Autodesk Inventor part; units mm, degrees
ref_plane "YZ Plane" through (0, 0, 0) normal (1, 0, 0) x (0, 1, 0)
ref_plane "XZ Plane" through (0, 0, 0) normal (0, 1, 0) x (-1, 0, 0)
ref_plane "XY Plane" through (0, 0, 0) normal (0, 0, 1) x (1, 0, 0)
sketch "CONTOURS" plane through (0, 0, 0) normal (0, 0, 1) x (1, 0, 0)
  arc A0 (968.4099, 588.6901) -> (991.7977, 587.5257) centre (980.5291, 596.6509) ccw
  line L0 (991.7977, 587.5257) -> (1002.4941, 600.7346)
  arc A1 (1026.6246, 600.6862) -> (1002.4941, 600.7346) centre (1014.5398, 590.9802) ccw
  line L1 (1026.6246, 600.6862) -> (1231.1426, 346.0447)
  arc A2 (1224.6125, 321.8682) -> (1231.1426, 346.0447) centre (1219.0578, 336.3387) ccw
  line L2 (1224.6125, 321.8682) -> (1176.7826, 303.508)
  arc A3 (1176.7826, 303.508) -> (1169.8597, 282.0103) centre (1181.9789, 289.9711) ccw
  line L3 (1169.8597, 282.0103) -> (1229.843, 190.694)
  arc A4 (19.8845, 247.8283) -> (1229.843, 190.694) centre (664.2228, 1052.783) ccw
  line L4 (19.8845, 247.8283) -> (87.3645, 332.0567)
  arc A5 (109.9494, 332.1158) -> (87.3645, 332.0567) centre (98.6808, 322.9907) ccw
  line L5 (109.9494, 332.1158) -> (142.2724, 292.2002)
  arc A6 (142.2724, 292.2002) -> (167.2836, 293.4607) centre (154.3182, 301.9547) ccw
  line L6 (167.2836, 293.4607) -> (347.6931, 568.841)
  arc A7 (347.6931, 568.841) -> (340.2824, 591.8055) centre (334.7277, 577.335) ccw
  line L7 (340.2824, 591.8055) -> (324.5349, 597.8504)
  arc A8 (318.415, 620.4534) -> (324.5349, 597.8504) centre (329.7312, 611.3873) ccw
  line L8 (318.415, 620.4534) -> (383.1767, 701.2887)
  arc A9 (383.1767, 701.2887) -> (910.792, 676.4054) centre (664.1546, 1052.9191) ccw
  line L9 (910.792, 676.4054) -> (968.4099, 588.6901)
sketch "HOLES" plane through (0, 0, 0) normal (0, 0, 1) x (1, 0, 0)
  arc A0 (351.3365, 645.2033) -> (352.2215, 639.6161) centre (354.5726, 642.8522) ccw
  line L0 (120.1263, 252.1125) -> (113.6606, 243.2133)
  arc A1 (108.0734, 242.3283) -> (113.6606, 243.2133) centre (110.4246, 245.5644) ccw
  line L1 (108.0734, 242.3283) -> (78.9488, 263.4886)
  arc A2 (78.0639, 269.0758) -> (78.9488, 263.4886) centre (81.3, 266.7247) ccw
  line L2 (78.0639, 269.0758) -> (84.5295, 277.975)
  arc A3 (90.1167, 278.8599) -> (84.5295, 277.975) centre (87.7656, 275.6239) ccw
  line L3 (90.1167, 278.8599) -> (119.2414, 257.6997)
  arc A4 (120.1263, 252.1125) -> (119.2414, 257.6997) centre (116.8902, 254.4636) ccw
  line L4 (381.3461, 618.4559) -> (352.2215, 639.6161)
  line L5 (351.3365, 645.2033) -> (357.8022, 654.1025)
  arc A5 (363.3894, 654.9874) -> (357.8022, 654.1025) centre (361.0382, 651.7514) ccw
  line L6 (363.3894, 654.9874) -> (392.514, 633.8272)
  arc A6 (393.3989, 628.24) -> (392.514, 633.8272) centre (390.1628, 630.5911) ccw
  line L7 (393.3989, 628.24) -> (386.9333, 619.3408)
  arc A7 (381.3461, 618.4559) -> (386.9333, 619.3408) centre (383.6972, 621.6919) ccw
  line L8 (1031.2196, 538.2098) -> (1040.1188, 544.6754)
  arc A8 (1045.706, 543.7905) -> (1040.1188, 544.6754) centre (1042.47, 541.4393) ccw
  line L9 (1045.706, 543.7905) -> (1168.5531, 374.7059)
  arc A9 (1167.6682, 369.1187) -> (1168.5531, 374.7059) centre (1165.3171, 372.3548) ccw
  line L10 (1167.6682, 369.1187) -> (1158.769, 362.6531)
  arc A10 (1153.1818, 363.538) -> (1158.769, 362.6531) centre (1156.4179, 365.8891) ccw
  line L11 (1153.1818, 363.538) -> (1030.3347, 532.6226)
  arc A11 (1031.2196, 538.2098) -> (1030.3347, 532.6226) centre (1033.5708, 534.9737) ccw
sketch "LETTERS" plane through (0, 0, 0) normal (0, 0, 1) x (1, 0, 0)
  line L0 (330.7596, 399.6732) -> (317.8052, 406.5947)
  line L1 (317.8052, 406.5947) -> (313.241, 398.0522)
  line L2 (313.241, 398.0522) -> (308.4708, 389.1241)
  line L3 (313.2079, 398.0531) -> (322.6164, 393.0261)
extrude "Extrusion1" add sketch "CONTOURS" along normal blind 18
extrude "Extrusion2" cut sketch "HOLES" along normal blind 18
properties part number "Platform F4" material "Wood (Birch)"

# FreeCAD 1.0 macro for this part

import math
import FreeCAD as App
import Part
import Sketcher
from FreeCAD import Vector
Q = App.Units.Quantity

doc = App.newDocument("Part")
body = doc.addObject("PartDesign::Body", "Body")

# Sketch on XY plane
sketch1 = doc.addObject("Sketcher::SketchObject", "Sketch")
body.addObject(sketch1)
sketch1.AttachmentSupport = (doc.XY_Plane, [""])
sketch1.MapMode = "FlatFace"
sketch1.addGeometry([
    Part.ArcOfCircle(Part.Circle(Vector(981, 597, 0), Vector(0, 0, 1), 14), math.radians(-147), math.radians(-39)),  # 0
    Part.LineSegment(Vector(968, 589, 0), Vector(911, 676, 0)),  # 1
    Part.ArcOfCircle(Part.Circle(Vector(664, 1053, 0), Vector(0, 0, 1), 450), math.radians(-129), math.radians(-57)),  # 2
    Part.LineSegment(Vector(383, 701, 0), Vector(318, 620, 0)),  # 3
    Part.ArcOfCircle(Part.Circle(Vector(330, 611, 0), Vector(0, 0, 1), 15), math.radians(141), math.radians(249)),  # 4
    Part.LineSegment(Vector(325, 598, 0), Vector(340, 592, 0)),  # 5
    Part.ArcOfCircle(Part.Circle(Vector(335, 577, 0), Vector(0, 0, 1), 15), math.radians(-33), math.radians(69)),  # 6
    Part.LineSegment(Vector(348, 569, 0), Vector(167, 293, 0)),  # 7
    Part.ArcOfCircle(Part.Circle(Vector(154, 302, 0), Vector(0, 0, 1), 16), math.radians(-141), math.radians(-33)),  # 8
    Part.LineSegment(Vector(142, 292, 0), Vector(110, 332, 0)),  # 9
    Part.ArcOfCircle(Part.Circle(Vector(99, 323, 0), Vector(0, 0, 1), 14), math.radians(39), math.radians(141)),  # 10
    Part.LineSegment(Vector(87, 332, 0), Vector(20, 248, 0)),  # 11
    Part.ArcOfCircle(Part.Circle(Vector(664, 1053, 0), Vector(0, 0, 1), 1031), math.radians(-129), math.radians(-57)),  # 12
    Part.LineSegment(Vector(1230, 191, 0), Vector(1170, 282, 0)),  # 13
    Part.ArcOfCircle(Part.Circle(Vector(1182, 290, 0), Vector(0, 0, 1), 14), math.radians(111), math.radians(213)),  # 14
    Part.LineSegment(Vector(1177, 304, 0), Vector(1225, 322, 0)),  # 15
    Part.ArcOfCircle(Part.Circle(Vector(1219, 336, 0), Vector(0, 0, 1), 16), math.radians(-69), math.radians(39)),  # 16
    Part.LineSegment(Vector(1231, 346, 0), Vector(1027, 601, 0)),  # 17
    Part.ArcOfCircle(Part.Circle(Vector(1015, 591, 0), Vector(0, 0, 1), 15), math.radians(39), math.radians(141)),  # 18
    Part.LineSegment(Vector(1002, 601, 0), Vector(992, 588, 0)),  # 19
], False)
sketch1.addConstraint([
    Sketcher.Constraint("Tangent", 0, 1, 1, 1),
    Sketcher.Constraint("Coincident", 1, 2, 2, 2),
    Sketcher.Constraint("Coincident", 2, 1, 3, 1),
    Sketcher.Constraint("Tangent", 3, 2, 4, 1),
    Sketcher.Constraint("Tangent", 4, 2, 5, 1),
    Sketcher.Constraint("Tangent", 5, 2, 6, 2),
    Sketcher.Constraint("Tangent", 6, 1, 7, 1),
    Sketcher.Constraint("Tangent", 7, 2, 8, 2),
    Sketcher.Constraint("Tangent", 8, 1, 9, 1),
    Sketcher.Constraint("Tangent", 9, 2, 10, 1),
    Sketcher.Constraint("Tangent", 10, 2, 11, 1),
    Sketcher.Constraint("Coincident", 11, 2, 12, 1),
    Sketcher.Constraint("Coincident", 12, 2, 13, 1),
    Sketcher.Constraint("Tangent", 13, 2, 14, 2),
    Sketcher.Constraint("Tangent", 14, 1, 15, 1),
    Sketcher.Constraint("Tangent", 15, 2, 16, 1),
    Sketcher.Constraint("Tangent", 16, 2, 17, 1),
    Sketcher.Constraint("Tangent", 17, 2, 18, 1),
    Sketcher.Constraint("Tangent", 18, 2, 19, 1),
    Sketcher.Constraint("Tangent", 19, 2, 0, 2),
    Sketcher.Constraint("Equal", 0, 4),
    Sketcher.Constraint("Equal", 6, 8),
    Sketcher.Constraint("Equal", 4, 10),
    Sketcher.Constraint("Equal", 10, 14),
    Sketcher.Constraint("Equal", 8, 16),
    Sketcher.Constraint("Equal", 16, 18),
    Sketcher.Constraint("Parallel", 3, 11),
    Sketcher.Constraint("Parallel", 1, 13),
    Sketcher.Constraint("Radius", 0, 14.5),
    Sketcher.Constraint("Radius", 6, 15.5),
    Sketcher.Constraint("Angle", 5, Q("-21 deg")),
    Sketcher.Constraint("Angle", 9, Q("129 deg")),
    Sketcher.Constraint("Angle", 15, Q("21 deg")),
    Sketcher.Constraint("Angle", 19, Q("-129 deg")),
    Sketcher.Constraint("Angle", 1, Q("123.2999 deg")),
    Sketcher.Constraint("Angle", 3, Q("-128.7002 deg")),
    Sketcher.Constraint("Radius", 12, 1031.079),
    Sketcher.Constraint("Angle", 7, Q("-123.23 deg")),
    Sketcher.Constraint("Angle", 17, Q("128.77 deg")),
    Sketcher.Constraint("Radius", 2, 450.1028),
    Sketcher.Constraint("DistanceX", -1, 1, 0, 1, 968.41),
    Sketcher.Constraint("DistanceY", -1, 1, 0, 1, 588.69),
    Sketcher.Constraint("DistanceX", 6, 3, 16, 3, 884.33),
    Sketcher.Constraint("DistanceX", 0, 1, 18, 3, 46.13),
    Sketcher.Constraint("DistanceY", 7, 2, 10, 3, 29.53),
    Sketcher.Constraint("DistanceX", 11, 2, 10, 2, 67.48),
    Sketcher.Constraint("DistanceX", 18, 3, 13, 2, 155.32),
    Sketcher.Constraint("DistanceY", 13, 2, 18, 3, 308.97),
    Sketcher.Constraint("Distance", 3, 103.578),
    Sketcher.Constraint("Distance", 7, 329.214),
    Sketcher.Constraint("Distance", 13, 109.255),
    Sketcher.Constraint("DistanceY", -1, 1, 2, 3, 1052.919),
    Sketcher.Constraint("DistanceY", -1, 1, 6, 3, 577.335),
    Sketcher.Constraint("DistanceX", -1, 1, 1, 2, 910.792),
])
pad1 = doc.addObject("PartDesign::Pad", "Pad")
body.addObject(pad1)
pad1.Profile = sketch1
pad1.Length = 18

# Sketch on XY plane
sketch2 = doc.addObject("Sketcher::SketchObject", "Sketch001")
body.addObject(sketch2)
sketch2.AttachmentSupport = (doc.XY_Plane, [""])
sketch2.MapMode = "FlatFace"
sketch2.addGeometry([
    Part.LineSegment(Vector(357.8, 654.1, 0), Vector(351.3, 645.2, 0)),  # 0
    Part.ArcOfCircle(Part.Circle(Vector(354.6, 642.9, 0), Vector(0, 0, 1), 4), math.radians(144), math.radians(234)),  # 1
    Part.LineSegment(Vector(352.2, 639.6, 0), Vector(381.3, 618.5, 0)),  # 2
    Part.ArcOfCircle(Part.Circle(Vector(383.7, 621.7, 0), Vector(0, 0, 1), 4), math.radians(-126), math.radians(-36)),  # 3
    Part.LineSegment(Vector(386.9, 619.3, 0), Vector(393.4, 628.2, 0)),  # 4
    Part.ArcOfCircle(Part.Circle(Vector(390.2, 630.6, 0), Vector(0, 0, 1), 4), math.radians(-36), math.radians(54)),  # 5
    Part.LineSegment(Vector(392.5, 633.8, 0), Vector(363.4, 655, 0)),  # 6
    Part.ArcOfCircle(Part.Circle(Vector(361, 651.8, 0), Vector(0, 0, 1), 4), math.radians(54), math.radians(144)),  # 7
    Part.LineSegment(Vector(113.7, 243.2, 0), Vector(120.1, 252.1, 0)),  # 8
    Part.ArcOfCircle(Part.Circle(Vector(116.9, 254.5, 0), Vector(0, 0, 1), 4), math.radians(-36), math.radians(54)),  # 9
    Part.LineSegment(Vector(119.2, 257.7, 0), Vector(90.1, 278.9, 0)),  # 10
    Part.ArcOfCircle(Part.Circle(Vector(87.8, 275.6, 0), Vector(0, 0, 1), 4), math.radians(54), math.radians(144)),  # 11
    Part.LineSegment(Vector(84.5, 278, 0), Vector(78.1, 269.1, 0)),  # 12
    Part.ArcOfCircle(Part.Circle(Vector(81.3, 266.7, 0), Vector(0, 0, 1), 4), math.radians(144), math.radians(234)),  # 13
    Part.LineSegment(Vector(78.9, 263.5, 0), Vector(108.1, 242.3, 0)),  # 14
    Part.ArcOfCircle(Part.Circle(Vector(110.4, 245.6, 0), Vector(0, 0, 1), 4), math.radians(-126), math.radians(-36)),  # 15
    Part.LineSegment(Vector(1040.1, 544.7, 0), Vector(1031.2, 538.2, 0)),  # 16
    Part.ArcOfCircle(Part.Circle(Vector(1033.6, 535, 0), Vector(0, 0, 1), 4), math.radians(126), math.radians(216)),  # 17
    Part.LineSegment(Vector(1030.3, 532.6, 0), Vector(1153.2, 363.5, 0)),  # 18
    Part.ArcOfCircle(Part.Circle(Vector(1156.4, 365.9, 0), Vector(0, 0, 1), 4), math.radians(-144), math.radians(-54)),  # 19
    Part.LineSegment(Vector(1158.8, 362.7, 0), Vector(1167.7, 369.1, 0)),  # 20
    Part.ArcOfCircle(Part.Circle(Vector(1165.3, 372.4, 0), Vector(0, 0, 1), 4), math.radians(-54), math.radians(36)),  # 21
    Part.LineSegment(Vector(1168.6, 374.7, 0), Vector(1045.7, 543.8, 0)),  # 22
    Part.ArcOfCircle(Part.Circle(Vector(1042.5, 541.4, 0), Vector(0, 0, 1), 4), math.radians(36), math.radians(126)),  # 23
], False)
sketch2.addConstraint([
    Sketcher.Constraint("Tangent", 0, 2, 1, 1),
    Sketcher.Constraint("Tangent", 1, 2, 2, 1),
    Sketcher.Constraint("Tangent", 2, 2, 3, 1),
    Sketcher.Constraint("Tangent", 3, 2, 4, 1),
    Sketcher.Constraint("Tangent", 4, 2, 5, 1),
    Sketcher.Constraint("Tangent", 5, 2, 6, 1),
    Sketcher.Constraint("Tangent", 6, 2, 7, 1),
    Sketcher.Constraint("Tangent", 7, 2, 0, 1),
    Sketcher.Constraint("Tangent", 8, 2, 9, 1),
    Sketcher.Constraint("Tangent", 9, 2, 10, 1),
    Sketcher.Constraint("Tangent", 10, 2, 11, 1),
    Sketcher.Constraint("Tangent", 11, 2, 12, 1),
    Sketcher.Constraint("Tangent", 12, 2, 13, 1),
    Sketcher.Constraint("Tangent", 13, 2, 14, 1),
    Sketcher.Constraint("Tangent", 14, 2, 15, 1),
    Sketcher.Constraint("Tangent", 15, 2, 8, 1),
    Sketcher.Constraint("Tangent", 16, 2, 17, 1),
    Sketcher.Constraint("Tangent", 17, 2, 18, 1),
    Sketcher.Constraint("Tangent", 18, 2, 19, 1),
    Sketcher.Constraint("Tangent", 19, 2, 20, 1),
    Sketcher.Constraint("Tangent", 20, 2, 21, 1),
    Sketcher.Constraint("Tangent", 21, 2, 22, 1),
    Sketcher.Constraint("Tangent", 22, 2, 23, 1),
    Sketcher.Constraint("Tangent", 23, 2, 16, 1),
    Sketcher.Constraint("Equal", 1, 3),
    Sketcher.Constraint("Equal", 3, 5),
    Sketcher.Constraint("Equal", 5, 7),
    Sketcher.Constraint("Equal", 7, 9),
    Sketcher.Constraint("Equal", 9, 11),
    Sketcher.Constraint("Equal", 11, 13),
    Sketcher.Constraint("Equal", 13, 15),
    Sketcher.Constraint("Equal", 15, 17),
    Sketcher.Constraint("Equal", 17, 19),
    Sketcher.Constraint("Equal", 19, 21),
    Sketcher.Constraint("Equal", 21, 23),
    Sketcher.Constraint("Perpendicular", 0, 2),
    Sketcher.Constraint("Perpendicular", 2, 4),
    Sketcher.Constraint("Perpendicular", 4, 6),
    Sketcher.Constraint("Perpendicular", 6, 8),
    Sketcher.Constraint("Perpendicular", 8, 10),
    Sketcher.Constraint("Perpendicular", 10, 12),
    Sketcher.Constraint("Perpendicular", 12, 14),
    Sketcher.Constraint("Perpendicular", 16, 18),
    Sketcher.Constraint("Perpendicular", 18, 20),
    Sketcher.Constraint("Perpendicular", 20, 22),
    Sketcher.Constraint("Equal", 4, 8),
    Sketcher.Constraint("Equal", 6, 10),
    Sketcher.Constraint("Equal", 12, 16),
    Sketcher.Constraint("Radius", 1, 4.0),
    Sketcher.Constraint("Angle", 0, Q("-126.0002 deg")),
    Sketcher.Constraint("Angle", 16, Q("-144.0002 deg")),
    Sketcher.Constraint("Distance", 0, 11.0),
    Sketcher.Constraint("Distance", 2, 36.0),
    Sketcher.Constraint("Distance", 18, 209.0),
    Sketcher.Constraint("DistanceX", -1, 1, 13, 3, 81.3),
    Sketcher.Constraint("DistanceX", -1, 1, 23, 3, 1042.47),
    Sketcher.Constraint("DistanceY", -1, 1, 4, 2, 628.24),
    Sketcher.Constraint("DistanceY", -1, 1, 10, 2, 278.86),
    Sketcher.Constraint("DistanceY", 9, 3, 17, 3, 280.51),
    Sketcher.Constraint("DistanceX", 3, 3, 21, 3, 781.62),
])
pocket1 = doc.addObject("PartDesign::Pocket", "Pocket")
body.addObject(pocket1)
pocket1.Profile = sketch2
pocket1.Length = 18
pocket1.Reversed = True

doc.recompute()
